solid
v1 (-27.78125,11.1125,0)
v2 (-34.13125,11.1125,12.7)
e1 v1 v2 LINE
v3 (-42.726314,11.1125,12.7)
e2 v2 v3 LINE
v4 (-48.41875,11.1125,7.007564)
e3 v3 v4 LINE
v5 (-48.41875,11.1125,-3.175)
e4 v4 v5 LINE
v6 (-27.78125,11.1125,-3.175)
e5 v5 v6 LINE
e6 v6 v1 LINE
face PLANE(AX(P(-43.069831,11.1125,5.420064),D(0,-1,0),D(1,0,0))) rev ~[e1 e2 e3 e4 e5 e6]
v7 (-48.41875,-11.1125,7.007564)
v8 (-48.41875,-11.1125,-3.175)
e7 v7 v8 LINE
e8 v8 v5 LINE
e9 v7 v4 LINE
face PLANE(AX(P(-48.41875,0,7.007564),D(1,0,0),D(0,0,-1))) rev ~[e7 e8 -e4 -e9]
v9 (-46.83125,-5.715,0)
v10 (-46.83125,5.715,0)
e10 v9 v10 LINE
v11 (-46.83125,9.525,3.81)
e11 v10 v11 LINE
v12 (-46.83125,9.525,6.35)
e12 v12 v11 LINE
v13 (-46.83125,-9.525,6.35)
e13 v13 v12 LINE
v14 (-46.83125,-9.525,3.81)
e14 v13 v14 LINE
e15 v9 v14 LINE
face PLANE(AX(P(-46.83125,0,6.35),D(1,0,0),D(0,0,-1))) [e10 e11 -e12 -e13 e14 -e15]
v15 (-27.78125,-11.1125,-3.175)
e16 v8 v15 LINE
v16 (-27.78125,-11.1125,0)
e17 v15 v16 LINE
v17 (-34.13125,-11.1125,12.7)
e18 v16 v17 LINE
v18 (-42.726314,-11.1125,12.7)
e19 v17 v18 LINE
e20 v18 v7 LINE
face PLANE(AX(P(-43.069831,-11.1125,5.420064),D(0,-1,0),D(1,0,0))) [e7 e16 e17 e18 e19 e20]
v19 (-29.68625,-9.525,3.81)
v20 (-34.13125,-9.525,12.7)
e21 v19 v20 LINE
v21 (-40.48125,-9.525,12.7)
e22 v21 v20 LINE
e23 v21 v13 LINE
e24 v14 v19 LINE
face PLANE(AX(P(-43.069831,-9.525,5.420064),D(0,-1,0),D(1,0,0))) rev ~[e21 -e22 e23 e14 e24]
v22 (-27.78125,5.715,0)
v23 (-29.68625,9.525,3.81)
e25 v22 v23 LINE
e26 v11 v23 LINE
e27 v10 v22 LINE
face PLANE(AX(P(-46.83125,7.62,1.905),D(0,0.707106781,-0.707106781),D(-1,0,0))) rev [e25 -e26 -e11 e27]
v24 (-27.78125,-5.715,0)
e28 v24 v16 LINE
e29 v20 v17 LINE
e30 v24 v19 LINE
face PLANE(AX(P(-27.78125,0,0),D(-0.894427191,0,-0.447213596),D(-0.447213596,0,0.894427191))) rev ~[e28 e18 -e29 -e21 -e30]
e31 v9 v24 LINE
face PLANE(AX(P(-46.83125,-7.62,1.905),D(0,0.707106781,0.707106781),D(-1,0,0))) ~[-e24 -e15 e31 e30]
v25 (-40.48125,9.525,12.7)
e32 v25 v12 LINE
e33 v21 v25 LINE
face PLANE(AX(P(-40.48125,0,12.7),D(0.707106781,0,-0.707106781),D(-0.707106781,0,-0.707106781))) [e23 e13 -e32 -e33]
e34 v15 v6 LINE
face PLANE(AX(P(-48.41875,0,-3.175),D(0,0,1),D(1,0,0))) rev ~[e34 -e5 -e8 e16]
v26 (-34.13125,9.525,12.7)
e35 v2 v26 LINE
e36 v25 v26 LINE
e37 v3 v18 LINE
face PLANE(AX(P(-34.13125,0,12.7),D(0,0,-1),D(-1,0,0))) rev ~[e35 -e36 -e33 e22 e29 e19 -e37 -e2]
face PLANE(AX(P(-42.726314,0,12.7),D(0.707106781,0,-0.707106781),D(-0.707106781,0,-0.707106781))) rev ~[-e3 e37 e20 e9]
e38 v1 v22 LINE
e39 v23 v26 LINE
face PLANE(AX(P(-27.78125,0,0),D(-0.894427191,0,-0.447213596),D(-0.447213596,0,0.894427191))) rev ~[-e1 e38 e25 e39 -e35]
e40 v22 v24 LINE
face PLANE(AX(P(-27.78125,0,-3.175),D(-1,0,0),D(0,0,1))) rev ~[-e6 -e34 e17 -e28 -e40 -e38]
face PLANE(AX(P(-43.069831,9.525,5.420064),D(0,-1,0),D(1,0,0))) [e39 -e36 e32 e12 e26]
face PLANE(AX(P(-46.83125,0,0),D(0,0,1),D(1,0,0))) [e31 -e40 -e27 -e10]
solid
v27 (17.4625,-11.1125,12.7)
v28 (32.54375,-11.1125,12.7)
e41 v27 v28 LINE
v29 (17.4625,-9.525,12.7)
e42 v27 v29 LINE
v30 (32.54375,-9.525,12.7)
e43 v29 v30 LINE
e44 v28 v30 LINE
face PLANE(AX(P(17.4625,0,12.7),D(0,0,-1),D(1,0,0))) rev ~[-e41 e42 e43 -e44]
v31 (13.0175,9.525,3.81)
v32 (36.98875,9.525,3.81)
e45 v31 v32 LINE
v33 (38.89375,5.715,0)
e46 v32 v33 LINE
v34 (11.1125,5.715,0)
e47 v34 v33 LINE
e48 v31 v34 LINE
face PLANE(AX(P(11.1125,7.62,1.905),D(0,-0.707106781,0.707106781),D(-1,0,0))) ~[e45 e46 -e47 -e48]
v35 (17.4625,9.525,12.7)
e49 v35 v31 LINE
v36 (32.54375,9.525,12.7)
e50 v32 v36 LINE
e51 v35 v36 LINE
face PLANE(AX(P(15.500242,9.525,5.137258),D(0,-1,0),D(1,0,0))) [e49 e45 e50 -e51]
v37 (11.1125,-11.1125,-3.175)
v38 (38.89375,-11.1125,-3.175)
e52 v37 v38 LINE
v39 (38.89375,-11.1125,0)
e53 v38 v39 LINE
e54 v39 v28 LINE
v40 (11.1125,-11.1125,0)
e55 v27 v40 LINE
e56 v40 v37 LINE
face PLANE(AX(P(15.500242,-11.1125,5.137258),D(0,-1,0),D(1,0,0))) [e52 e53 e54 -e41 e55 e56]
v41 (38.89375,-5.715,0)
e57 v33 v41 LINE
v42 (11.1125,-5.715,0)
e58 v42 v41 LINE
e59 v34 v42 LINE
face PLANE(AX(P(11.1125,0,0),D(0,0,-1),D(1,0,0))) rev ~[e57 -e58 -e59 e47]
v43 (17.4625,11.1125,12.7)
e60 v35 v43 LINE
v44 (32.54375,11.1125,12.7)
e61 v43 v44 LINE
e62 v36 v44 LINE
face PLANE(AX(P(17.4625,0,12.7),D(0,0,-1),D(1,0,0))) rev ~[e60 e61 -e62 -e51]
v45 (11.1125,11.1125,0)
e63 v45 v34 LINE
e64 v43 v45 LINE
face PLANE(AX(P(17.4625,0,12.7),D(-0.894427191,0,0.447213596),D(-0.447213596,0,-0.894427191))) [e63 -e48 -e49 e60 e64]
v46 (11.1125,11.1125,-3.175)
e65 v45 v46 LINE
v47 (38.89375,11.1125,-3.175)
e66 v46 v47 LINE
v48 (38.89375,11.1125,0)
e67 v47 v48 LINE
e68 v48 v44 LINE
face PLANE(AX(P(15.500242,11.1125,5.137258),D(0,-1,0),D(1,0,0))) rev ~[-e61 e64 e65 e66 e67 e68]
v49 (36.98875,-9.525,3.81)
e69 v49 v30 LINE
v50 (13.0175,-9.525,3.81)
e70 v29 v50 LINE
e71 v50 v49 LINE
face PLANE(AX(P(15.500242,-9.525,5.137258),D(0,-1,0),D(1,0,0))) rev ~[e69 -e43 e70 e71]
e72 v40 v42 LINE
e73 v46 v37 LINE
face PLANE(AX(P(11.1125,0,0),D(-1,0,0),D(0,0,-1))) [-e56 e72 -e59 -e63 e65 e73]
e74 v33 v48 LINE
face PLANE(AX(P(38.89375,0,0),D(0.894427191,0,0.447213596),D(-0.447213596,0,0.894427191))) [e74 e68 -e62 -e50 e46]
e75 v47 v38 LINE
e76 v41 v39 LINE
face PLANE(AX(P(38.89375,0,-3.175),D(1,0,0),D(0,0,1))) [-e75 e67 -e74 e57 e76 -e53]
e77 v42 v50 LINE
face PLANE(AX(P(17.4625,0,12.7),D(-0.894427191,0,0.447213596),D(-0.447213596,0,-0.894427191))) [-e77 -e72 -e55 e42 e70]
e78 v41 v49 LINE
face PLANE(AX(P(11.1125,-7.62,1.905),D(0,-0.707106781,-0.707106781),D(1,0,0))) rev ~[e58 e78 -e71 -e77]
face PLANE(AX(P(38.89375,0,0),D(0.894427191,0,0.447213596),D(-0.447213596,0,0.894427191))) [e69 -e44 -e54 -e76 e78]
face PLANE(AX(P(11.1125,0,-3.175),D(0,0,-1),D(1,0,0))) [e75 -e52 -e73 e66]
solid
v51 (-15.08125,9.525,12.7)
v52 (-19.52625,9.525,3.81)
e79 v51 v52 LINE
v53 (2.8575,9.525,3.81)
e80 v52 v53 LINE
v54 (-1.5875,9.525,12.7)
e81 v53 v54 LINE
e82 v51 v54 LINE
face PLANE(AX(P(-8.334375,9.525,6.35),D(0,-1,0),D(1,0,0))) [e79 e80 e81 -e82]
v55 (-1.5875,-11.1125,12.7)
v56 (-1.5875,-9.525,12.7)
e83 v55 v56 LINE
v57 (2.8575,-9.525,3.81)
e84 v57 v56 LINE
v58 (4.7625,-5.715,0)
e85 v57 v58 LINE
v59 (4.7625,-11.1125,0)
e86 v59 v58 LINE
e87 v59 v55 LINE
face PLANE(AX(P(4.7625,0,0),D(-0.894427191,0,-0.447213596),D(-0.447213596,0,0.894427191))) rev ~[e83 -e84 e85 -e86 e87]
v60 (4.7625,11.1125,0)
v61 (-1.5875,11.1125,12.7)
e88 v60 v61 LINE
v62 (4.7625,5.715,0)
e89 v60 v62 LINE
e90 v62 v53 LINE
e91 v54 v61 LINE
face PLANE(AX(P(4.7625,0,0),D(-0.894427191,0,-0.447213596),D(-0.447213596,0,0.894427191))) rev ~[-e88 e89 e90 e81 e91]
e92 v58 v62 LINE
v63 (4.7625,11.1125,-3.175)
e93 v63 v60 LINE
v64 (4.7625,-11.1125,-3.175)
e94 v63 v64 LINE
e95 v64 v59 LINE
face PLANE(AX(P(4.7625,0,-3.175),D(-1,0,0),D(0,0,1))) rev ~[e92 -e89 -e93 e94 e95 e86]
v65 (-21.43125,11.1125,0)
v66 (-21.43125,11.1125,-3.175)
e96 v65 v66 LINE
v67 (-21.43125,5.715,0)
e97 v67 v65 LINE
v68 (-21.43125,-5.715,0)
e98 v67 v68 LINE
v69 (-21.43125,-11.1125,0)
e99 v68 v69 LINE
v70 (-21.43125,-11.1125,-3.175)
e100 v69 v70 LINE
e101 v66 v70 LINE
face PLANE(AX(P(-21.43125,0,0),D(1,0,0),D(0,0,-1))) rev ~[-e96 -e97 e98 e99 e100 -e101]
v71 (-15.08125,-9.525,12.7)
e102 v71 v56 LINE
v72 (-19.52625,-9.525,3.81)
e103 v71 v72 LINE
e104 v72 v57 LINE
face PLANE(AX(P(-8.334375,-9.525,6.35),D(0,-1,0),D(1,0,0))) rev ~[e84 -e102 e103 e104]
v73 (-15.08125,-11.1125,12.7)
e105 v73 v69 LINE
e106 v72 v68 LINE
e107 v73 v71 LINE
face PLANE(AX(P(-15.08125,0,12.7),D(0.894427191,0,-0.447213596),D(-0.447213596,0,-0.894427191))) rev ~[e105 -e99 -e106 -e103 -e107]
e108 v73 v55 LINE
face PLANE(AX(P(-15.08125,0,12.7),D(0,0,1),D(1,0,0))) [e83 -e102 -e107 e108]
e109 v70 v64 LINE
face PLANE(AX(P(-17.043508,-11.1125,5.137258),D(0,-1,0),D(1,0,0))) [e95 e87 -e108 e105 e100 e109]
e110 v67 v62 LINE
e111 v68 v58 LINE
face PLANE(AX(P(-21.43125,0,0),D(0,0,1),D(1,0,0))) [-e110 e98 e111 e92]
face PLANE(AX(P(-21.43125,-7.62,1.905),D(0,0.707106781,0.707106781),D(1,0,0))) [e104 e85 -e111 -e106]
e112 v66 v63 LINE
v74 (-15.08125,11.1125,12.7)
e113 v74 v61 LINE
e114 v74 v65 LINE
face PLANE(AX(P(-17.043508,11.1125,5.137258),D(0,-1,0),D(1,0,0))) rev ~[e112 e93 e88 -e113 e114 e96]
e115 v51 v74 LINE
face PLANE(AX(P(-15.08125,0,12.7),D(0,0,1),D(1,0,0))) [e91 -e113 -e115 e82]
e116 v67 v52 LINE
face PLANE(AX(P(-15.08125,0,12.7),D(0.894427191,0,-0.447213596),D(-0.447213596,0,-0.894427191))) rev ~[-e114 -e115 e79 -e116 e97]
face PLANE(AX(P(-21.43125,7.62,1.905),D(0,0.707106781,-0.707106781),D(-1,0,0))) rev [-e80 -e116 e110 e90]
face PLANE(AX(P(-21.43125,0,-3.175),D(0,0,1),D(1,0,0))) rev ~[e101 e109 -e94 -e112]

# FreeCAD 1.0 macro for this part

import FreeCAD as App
import Part
import Sketcher

V = App.Vector
Q = App.Units.Quantity


def edges_at(feature, points):
    """Names of the edges that pass closest to the given points."""
    edges = feature.Shape.Edges
    near = lambda p: min(range(len(edges)), key=lambda i: edges[i].distToShape(Part.Vertex(*p))[0])
    return sorted({f"Edge{near(p) + 1}" for p in points})

doc = App.newDocument("Part")
params = doc.addObject("Spreadsheet::Sheet", "Params")
for row, (alias, value) in enumerate([
    ("sketch1_width", "0.8125 in"),
    ("sketch1_width2", "1.03125 in"),
    ("sketch1_width3", "0.53125 in"),
    ("sketch1_width4", "1.09375 in"),
    ("sketch1_height", "0.125 in"),
    ("pad1_length", "0.875 in"),
    ("sketch2_width", "0.75 in"),
    ("sketch2_width2", "0.25 in"),
    ("sketch2_width3", "0.53125 in"),
    ("sketch2_width4", "1.09375 in"),
    ("pocket1_length", "0.75 in"),
    ("chamfer_size", "0.15 in"),
], start=1):
    params.set(f"A{row}", alias)
    params.set(f"B{row}", "=" + value)
    params.setAlias(f"B{row}", alias)

body = doc.addObject("PartDesign::Body", "Body")
body.AllowCompound = True

sketch1 = doc.addObject("Sketcher::SketchObject", "Sketch")
body.addObject(sketch1)
sketch1.AttachmentSupport = (doc.XZ_Plane, [""])
sketch1.MapMode = "FlatFace"
sketch1.addGeometry([
    Part.LineSegment(V(-27.8, -3.2, 0), V(-27.8, 0, 0)),
    Part.LineSegment(V(-27.8, 0, 0), V(-34.1, 12.7, 0)),
    Part.LineSegment(V(-34.1, 12.7, 0), V(-42.7, 12.7, 0)),
    Part.LineSegment(V(-42.7, 12.7, 0), V(-48.4, 7, 0)),
    Part.LineSegment(V(-48.4, 7, 0), V(-48.4, -3.2, 0)),
    Part.LineSegment(V(-48.4, -3.2, 0), V(-27.8, -3.2, 0)),
    Part.LineSegment(V(-15.1, 12.7, 0), V(-21.4, 0, 0)),
    Part.LineSegment(V(-21.4, 0, 0), V(-21.4, -3.2, 0)),
    Part.LineSegment(V(-21.4, -3.2, 0), V(4.8, -3.2, 0)),
    Part.LineSegment(V(4.8, -3.2, 0), V(4.8, 0, 0)),
    Part.LineSegment(V(4.8, 0, 0), V(-1.6, 12.7, 0)),
    Part.LineSegment(V(-1.6, 12.7, 0), V(-15.1, 12.7, 0)),
    Part.LineSegment(V(17.5, 12.7, 0), V(11.1, 0, 0)),
    Part.LineSegment(V(11.1, 0, 0), V(11.1, -3.2, 0)),
    Part.LineSegment(V(11.1, -3.2, 0), V(38.9, -3.2, 0)),
    Part.LineSegment(V(38.9, -3.2, 0), V(38.9, 0, 0)),
    Part.LineSegment(V(38.9, 0, 0), V(32.5, 12.7, 0)),
    Part.LineSegment(V(32.5, 12.7, 0), V(17.5, 12.7, 0)),
], False)
sketch1.addConstraint([
    Sketcher.Constraint("Coincident", 0, 2, 1, 1),
    Sketcher.Constraint("Coincident", 1, 2, 2, 1),
    Sketcher.Constraint("Coincident", 2, 2, 3, 1),
    Sketcher.Constraint("Coincident", 3, 2, 4, 1),
    Sketcher.Constraint("Coincident", 4, 2, 5, 1),
    Sketcher.Constraint("Coincident", 5, 2, 0, 1),
    Sketcher.Constraint("Coincident", 6, 2, 7, 1),
    Sketcher.Constraint("Coincident", 7, 2, 8, 1),
    Sketcher.Constraint("Coincident", 8, 2, 9, 1),
    Sketcher.Constraint("Coincident", 9, 2, 10, 1),
    Sketcher.Constraint("Coincident", 10, 2, 11, 1),
    Sketcher.Constraint("Coincident", 11, 2, 6, 1),
    Sketcher.Constraint("Coincident", 12, 2, 13, 1),
    Sketcher.Constraint("Coincident", 13, 2, 14, 1),
    Sketcher.Constraint("Coincident", 14, 2, 15, 1),
    Sketcher.Constraint("Coincident", 15, 2, 16, 1),
    Sketcher.Constraint("Coincident", 16, 2, 17, 1),
    Sketcher.Constraint("Coincident", 17, 2, 12, 1),
    Sketcher.Constraint("Vertical", 0),
    Sketcher.Constraint("Horizontal", 2),
    Sketcher.Constraint("Vertical", 4),
    Sketcher.Constraint("Horizontal", 5),
    Sketcher.Constraint("Vertical", 7),
    Sketcher.Constraint("Horizontal", 8),
    Sketcher.Constraint("Vertical", 9),
    Sketcher.Constraint("Horizontal", 11),
    Sketcher.Constraint("Vertical", 13),
    Sketcher.Constraint("Horizontal", 14),
    Sketcher.Constraint("Vertical", 15),
    Sketcher.Constraint("Horizontal", 17),
    Sketcher.Constraint("PointOnObject", 0, 2, -1),
    Sketcher.Constraint("PointOnObject", 6, 2, -1),
    Sketcher.Constraint("PointOnObject", 9, 2, -1),
    Sketcher.Constraint("PointOnObject", 12, 2, -1),
    Sketcher.Constraint("PointOnObject", 15, 2, -1),
    Sketcher.Constraint("Parallel", 1, 10),
    Sketcher.Constraint("Parallel", 6, 12),
    Sketcher.Constraint("Parallel", 10, 16),
    Sketcher.Constraint("Horizontal", 5, 2, 7, 2),
    Sketcher.Constraint("Horizontal", 2, 2, 10, 2),
    Sketcher.Constraint("Horizontal", 8, 2, 13, 2),
    Sketcher.Constraint("Horizontal", 11, 2, 16, 2),
    Sketcher.Constraint("Equal", 1, 6),
    Sketcher.Constraint("Angle", 3, Q("-135 deg")),
    Sketcher.Constraint("DistanceY", -1, 1, 1, 2, Q("0.5 in")),
    Sketcher.Constraint("DistanceX", 1, 2, 6, 2, Q("0.5 in")),
    Sketcher.Constraint("DistanceX", 10, 2, 12, 2, Q("0.5 in")),
    Sketcher.Constraint("DistanceX", 5, 1, 5, 2, Q("0.8125 in")),
    Sketcher.Constraint("DistanceX", 8, 1, 8, 2, Q("1.03125 in")),
    Sketcher.Constraint("DistanceX", 11, 2, 11, 1, Q("0.53125 in")),
    Sketcher.Constraint("DistanceX", 14, 1, 14, 2, Q("1.09375 in")),
    Sketcher.Constraint("DistanceY", 0, 1, 0, 2, Q("0.125 in")),
    Sketcher.Constraint("DistanceX", 0, 2, -1, 1, Q("1.09375 in")),
    Sketcher.Constraint("Distance", 3, 8.05032),
])
sketch1.setExpression("Constraints[47]", "Params.sketch1_width")
sketch1.setExpression("Constraints[48]", "Params.sketch1_width2")
sketch1.setExpression("Constraints[49]", "Params.sketch1_width3")
sketch1.setExpression("Constraints[50]", "Params.sketch1_width4")
sketch1.setExpression("Constraints[51]", "Params.sketch1_height")
pad1 = doc.addObject("PartDesign::Pad", "Pad")
body.addObject(pad1)
pad1.Profile = sketch1
pad1.setExpression("Length", "Params.pad1_length")
pad1.Midplane = True

sketch2 = doc.addObject("Sketcher::SketchObject", "Sketch001")
body.addObject(sketch2)
sketch2.AttachmentSupport = (doc.XZ_Plane, [""])
sketch2.MapMode = "FlatFace"
sketch2.addGeometry([
    Part.LineSegment(V(-47, 0, 0), V(-28, 0, 0)),
    Part.LineSegment(V(-28, 0, 0), V(-34, 13, 0)),
    Part.LineSegment(V(-34, 13, 0), V(-40, 13, 0)),
    Part.LineSegment(V(-40, 13, 0), V(-47, 6, 0)),
    Part.LineSegment(V(-47, 6, 0), V(-47, 0, 0)),
    Part.LineSegment(V(-2, 13, 0), V(-15, 13, 0)),
    Part.LineSegment(V(-15, 13, 0), V(-21, 0, 0)),
    Part.LineSegment(V(-21, 0, 0), V(5, 0, 0)),
    Part.LineSegment(V(5, 0, 0), V(-2, 13, 0)),
    Part.LineSegment(V(17, 13, 0), V(11, 0, 0)),
    Part.LineSegment(V(11, 0, 0), V(39, 0, 0)),
    Part.LineSegment(V(39, 0, 0), V(33, 13, 0)),
    Part.LineSegment(V(33, 13, 0), V(17, 13, 0)),
], False)
sketch2.addConstraint([
    Sketcher.Constraint("Coincident", 0, 2, 1, 1),
    Sketcher.Constraint("Coincident", 1, 2, 2, 1),
    Sketcher.Constraint("Coincident", 2, 2, 3, 1),
    Sketcher.Constraint("Coincident", 3, 2, 4, 1),
    Sketcher.Constraint("Coincident", 4, 2, 0, 1),
    Sketcher.Constraint("Coincident", 5, 2, 6, 1),
    Sketcher.Constraint("Coincident", 6, 2, 7, 1),
    Sketcher.Constraint("Coincident", 7, 2, 8, 1),
    Sketcher.Constraint("Coincident", 8, 2, 5, 1),
    Sketcher.Constraint("Coincident", 9, 2, 10, 1),
    Sketcher.Constraint("Coincident", 10, 2, 11, 1),
    Sketcher.Constraint("Coincident", 11, 2, 12, 1),
    Sketcher.Constraint("Coincident", 12, 2, 9, 1),
    Sketcher.Constraint("Horizontal", 0),
    Sketcher.Constraint("Horizontal", 2),
    Sketcher.Constraint("Vertical", 4),
    Sketcher.Constraint("Horizontal", 5),
    Sketcher.Constraint("Horizontal", 7),
    Sketcher.Constraint("Horizontal", 10),
    Sketcher.Constraint("Horizontal", 12),
    Sketcher.Constraint("PointOnObject", 0, 2, -1),
    Sketcher.Constraint("PointOnObject", 6, 2, -1),
    Sketcher.Constraint("PointOnObject", 9, 2, -1),
    Sketcher.Constraint("Parallel", 1, 8),
    Sketcher.Constraint("Parallel", 6, 9),
    Sketcher.Constraint("Parallel", 8, 11),
    Sketcher.Constraint("Horizontal", 2, 2, 5, 2),
    Sketcher.Constraint("Horizontal", 8, 2, 11, 2),
    Sketcher.Constraint("Equal", 2, 4),
    Sketcher.Constraint("Equal", 1, 6),
    Sketcher.Constraint("Angle", 3, Q("-135 deg")),
    Sketcher.Constraint("DistanceX", 2, 2, 5, 2, Q("1 in")),
    Sketcher.Constraint("DistanceX", 4, 2, 6, 2, Q("1 in")),
    Sketcher.Constraint("DistanceX", 0, 1, 0, 2, Q("0.75 in")),
    Sketcher.Constraint("DistanceX", 2, 2, 2, 1, Q("0.25 in")),
    Sketcher.Constraint("DistanceX", 8, 2, 9, 2, Q("0.5 in")),
    Sketcher.Constraint("DistanceX", 5, 2, 5, 1, Q("0.53125 in")),
    Sketcher.Constraint("DistanceX", 10, 1, 10, 2, Q("1.09375 in")),
    Sketcher.Constraint("DistanceX", 0, 2, -1, 1, Q("1.09375 in")),
])
sketch2.setExpression("Constraints[33]", "Params.sketch2_width")
sketch2.setExpression("Constraints[34]", "Params.sketch2_width2")
sketch2.setExpression("Constraints[36]", "Params.sketch2_width3")
sketch2.setExpression("Constraints[37]", "Params.sketch2_width4")
pocket1 = doc.addObject("PartDesign::Pocket", "Pocket")
body.addObject(pocket1)
pocket1.Profile = sketch2
pocket1.setExpression("Length", "Params.pocket1_length")
pocket1.Midplane = True
doc.recompute()

chamfer = doc.addObject("PartDesign::Chamfer", "Chamfer")
body.addObject(chamfer)
chamfer.Base = (pocket1, edges_at(pocket1, [
    (-37.306, 9.525, 0),
    (-37.306, -9.525, 0),
    (-8.334, -9.525, 0),
    (25.003, -9.525, 0),
    (-8.334, 9.525, 0),
    (25.003, 9.525, 0),
]))
chamfer.setExpression("Size", "Params.chamfer_size")

doc.recompute()
